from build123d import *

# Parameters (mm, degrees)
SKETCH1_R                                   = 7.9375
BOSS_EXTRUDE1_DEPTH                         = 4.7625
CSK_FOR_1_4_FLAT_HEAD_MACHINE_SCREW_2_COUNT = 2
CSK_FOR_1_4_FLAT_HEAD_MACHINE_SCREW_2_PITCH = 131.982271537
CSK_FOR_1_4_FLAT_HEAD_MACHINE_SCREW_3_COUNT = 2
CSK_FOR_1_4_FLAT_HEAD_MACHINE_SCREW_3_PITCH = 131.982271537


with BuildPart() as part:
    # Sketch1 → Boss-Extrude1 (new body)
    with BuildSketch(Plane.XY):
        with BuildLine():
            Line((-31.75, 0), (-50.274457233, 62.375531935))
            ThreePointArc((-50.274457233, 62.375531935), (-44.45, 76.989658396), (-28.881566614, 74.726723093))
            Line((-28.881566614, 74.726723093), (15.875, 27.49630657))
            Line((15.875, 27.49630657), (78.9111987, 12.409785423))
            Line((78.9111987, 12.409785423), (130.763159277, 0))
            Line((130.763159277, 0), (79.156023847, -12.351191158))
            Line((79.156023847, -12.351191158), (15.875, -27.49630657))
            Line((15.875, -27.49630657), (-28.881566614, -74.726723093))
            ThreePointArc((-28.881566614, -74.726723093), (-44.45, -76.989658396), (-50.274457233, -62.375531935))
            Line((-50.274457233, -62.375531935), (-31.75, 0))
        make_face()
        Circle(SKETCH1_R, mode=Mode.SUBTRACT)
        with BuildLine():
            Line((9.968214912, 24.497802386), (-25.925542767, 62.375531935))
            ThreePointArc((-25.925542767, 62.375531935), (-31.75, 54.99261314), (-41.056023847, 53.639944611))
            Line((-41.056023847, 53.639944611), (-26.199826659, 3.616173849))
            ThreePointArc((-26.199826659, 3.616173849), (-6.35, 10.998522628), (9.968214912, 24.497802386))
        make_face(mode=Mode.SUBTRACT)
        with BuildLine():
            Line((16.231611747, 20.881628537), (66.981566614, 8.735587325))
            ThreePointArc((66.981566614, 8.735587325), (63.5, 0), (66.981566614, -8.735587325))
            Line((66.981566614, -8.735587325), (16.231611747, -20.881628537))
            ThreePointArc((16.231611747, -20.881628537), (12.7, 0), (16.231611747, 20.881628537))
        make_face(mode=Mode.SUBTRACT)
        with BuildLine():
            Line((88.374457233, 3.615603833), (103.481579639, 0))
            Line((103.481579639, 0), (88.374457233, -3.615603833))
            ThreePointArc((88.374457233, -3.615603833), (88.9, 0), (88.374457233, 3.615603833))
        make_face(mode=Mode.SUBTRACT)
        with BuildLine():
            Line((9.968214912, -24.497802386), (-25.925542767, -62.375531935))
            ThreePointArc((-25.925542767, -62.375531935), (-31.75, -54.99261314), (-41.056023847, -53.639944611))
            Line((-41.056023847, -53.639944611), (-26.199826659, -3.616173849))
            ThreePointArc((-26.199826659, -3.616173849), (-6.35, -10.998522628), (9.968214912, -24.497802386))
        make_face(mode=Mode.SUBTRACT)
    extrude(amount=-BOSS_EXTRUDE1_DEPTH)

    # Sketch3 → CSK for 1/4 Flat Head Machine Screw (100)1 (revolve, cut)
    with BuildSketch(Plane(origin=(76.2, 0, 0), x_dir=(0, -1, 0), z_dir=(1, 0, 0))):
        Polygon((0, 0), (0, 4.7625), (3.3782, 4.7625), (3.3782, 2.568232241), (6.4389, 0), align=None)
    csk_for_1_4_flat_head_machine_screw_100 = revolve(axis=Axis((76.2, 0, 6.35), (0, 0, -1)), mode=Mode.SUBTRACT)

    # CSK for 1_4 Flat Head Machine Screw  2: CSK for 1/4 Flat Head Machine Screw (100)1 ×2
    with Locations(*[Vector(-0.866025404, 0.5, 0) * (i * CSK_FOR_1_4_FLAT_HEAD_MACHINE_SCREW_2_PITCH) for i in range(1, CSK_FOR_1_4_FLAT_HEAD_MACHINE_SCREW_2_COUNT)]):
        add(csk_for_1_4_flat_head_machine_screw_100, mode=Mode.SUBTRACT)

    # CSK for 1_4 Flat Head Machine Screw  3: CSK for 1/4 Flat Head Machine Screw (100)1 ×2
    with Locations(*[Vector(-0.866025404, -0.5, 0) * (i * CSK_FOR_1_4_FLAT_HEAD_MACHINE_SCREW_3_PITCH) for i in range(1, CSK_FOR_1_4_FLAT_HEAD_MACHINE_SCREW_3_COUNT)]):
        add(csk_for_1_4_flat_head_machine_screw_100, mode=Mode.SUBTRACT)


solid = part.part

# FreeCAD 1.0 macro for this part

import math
import FreeCAD as App
import Part
import Sketcher
from FreeCAD import Vector
Q = App.Units.Quantity


def add_polygon(sketch, points):
    """Adds a closed chain of lines whose ends are joined by coincident constraints."""
    first, n = sketch.GeometryCount, len(points)
    for a, b in zip(points, points[1:] + points[:1]):
        sketch.addGeometry(Part.LineSegment(App.Vector(*a, 0), App.Vector(*b, 0)), False)
    for i in range(n):
        sketch.addConstraint(Sketcher.Constraint("Coincident", first + i, 2, first + (i + 1) % n, 1))

doc = App.newDocument("Part")
body = doc.addObject("PartDesign::Body", "Body")

sketch1 = body.newObject("Sketcher::SketchObject", "Sketch")
sketch1.AttachmentSupport = (doc.getObject("XY_Plane"), [""])
sketch1.MapMode = "FlatFace"
sketch1.addGeometry([
    Part.LineSegment(Vector(-50.274457, 62.375532, 0), Vector(-31.75, 0, 0)),
    Part.LineSegment(Vector(-31.75, 0, 0), Vector(-50.274457, -62.375532, 0)),
    Part.ArcOfCircle(Part.Circle(Vector(-38.1, -65.991136, 0), Vector(0, 0, 1), 12.7), math.radians(163.459489), math.radians(316.540511)),
    Part.LineSegment(Vector(-28.881567, -74.726723, 0), Vector(15.875, -27.496307, 0)),
    Part.LineSegment(Vector(15.875, -27.496307, 0), Vector(79.156024, -12.351191, 0)),
    Part.LineSegment(Vector(79.156024, -12.351191, 0), Vector(130.763159, 0, 0)),
    Part.LineSegment(Vector(130.763159, 0, 0), Vector(78.911199, 12.409785, 0)),
    Part.LineSegment(Vector(78.911199, 12.409785, 0), Vector(15.875, 27.496307, 0)),
    Part.LineSegment(Vector(15.875, 27.496307, 0), Vector(-28.881567, 74.726723, 0)),
    Part.ArcOfCircle(Part.Circle(Vector(-38.1, 65.991136, 0), Vector(0, 0, 1), 12.7), math.radians(43.459489), math.radians(196.540511)),
    Part.LineSegment(Vector(9.968215, -24.497802, 0), Vector(-25.925543, -62.375532, 0)),
    Part.ArcOfCircle(Part.Circle(Vector(-38.1, -65.991136, 0), Vector(0, 0, 1), 12.7), math.radians(16.540511), math.radians(103.459489)),
    Part.LineSegment(Vector(-41.056024, -53.639945, 0), Vector(-26.199827, -3.616174, 0)),
    Part.ArcOfCircle(Part.Circle(Vector(-38.1, -65.991136, 0), Vector(0, 0, 1), 63.5), math.radians(40.801341), math.radians(79.198659)),
    Part.LineSegment(Vector(88.374457, 3.615604, 0), Vector(103.48158, 0, 0)),
    Part.LineSegment(Vector(103.48158, 0, 0), Vector(88.374457, -3.615604, 0)),
    Part.ArcOfCircle(Part.Circle(Vector(76.2, 0, 0), Vector(0, 0, 1), 12.7), math.radians(-16.540511), math.radians(16.540511)),
    Part.LineSegment(Vector(16.231612, 20.881629, 0), Vector(66.981567, 8.735587, 0)),
    Part.ArcOfCircle(Part.Circle(Vector(76.2, 0, 0), Vector(0, 0, 1), 12.7), math.radians(136.540511), math.radians(223.459489)),
    Part.LineSegment(Vector(66.981567, -8.735587, 0), Vector(16.231612, -20.881629, 0)),
    Part.ArcOfCircle(Part.Circle(Vector(76.2, 0, 0), Vector(0, 0, 1), 63.5), math.radians(160.801341), math.radians(199.198659)),
    Part.Circle(Vector(0, 0, 0), Vector(0, 0, 1), 7.9375),
    Part.ArcOfCircle(Part.Circle(Vector(-38.1, 65.991136, 0), Vector(0, 0, 1), 63.5), math.radians(-79.198659), math.radians(-40.801341)),
    Part.LineSegment(Vector(-26.199827, 3.616174, 0), Vector(-41.056024, 53.639945, 0)),
    Part.ArcOfCircle(Part.Circle(Vector(-38.1, 65.991136, 0), Vector(0, 0, 1), 12.7), math.radians(-103.459489), math.radians(-16.540511)),
    Part.LineSegment(Vector(-25.925543, 62.375532, 0), Vector(9.968215, 24.497802, 0)),
], False)
sketch1.addConstraint([
    Sketcher.Constraint("Coincident", 0, 2, 1, 1),
    Sketcher.Constraint("Tangent", 1, 2, 2, 1),
    Sketcher.Constraint("Tangent", 2, 2, 3, 1),
    Sketcher.Constraint("Coincident", 3, 2, 4, 1),
    Sketcher.Constraint("Coincident", 4, 2, 5, 1),
    Sketcher.Constraint("Coincident", 5, 2, 6, 1),
    Sketcher.Constraint("Coincident", 6, 2, 7, 1),
    Sketcher.Constraint("Coincident", 7, 2, 8, 1),
    Sketcher.Constraint("Tangent", 8, 2, 9, 1),
    Sketcher.Constraint("Tangent", 9, 2, 0, 1),
    Sketcher.Constraint("Coincident", 10, 2, 11, 1),
    Sketcher.Constraint("Coincident", 11, 2, 12, 1),
    Sketcher.Constraint("Coincident", 12, 2, 13, 2),
    Sketcher.Constraint("Coincident", 13, 1, 10, 1),
    Sketcher.Constraint("Coincident", 14, 2, 15, 1),
    Sketcher.Constraint("Coincident", 15, 2, 16, 1),
    Sketcher.Constraint("Coincident", 16, 2, 14, 1),
    Sketcher.Constraint("Coincident", 17, 2, 18, 1),
    Sketcher.Constraint("Coincident", 18, 2, 19, 1),
    Sketcher.Constraint("Coincident", 19, 2, 20, 2),
    Sketcher.Constraint("Coincident", 20, 1, 17, 1),
    Sketcher.Constraint("Coincident", 22, 1, 23, 1),
    Sketcher.Constraint("Coincident", 23, 2, 24, 1),
    Sketcher.Constraint("Coincident", 24, 2, 25, 1),
    Sketcher.Constraint("Coincident", 25, 2, 22, 2),
    Sketcher.Constraint("Coincident", 21, 3, -1, 1),
    Sketcher.Constraint("Coincident", 11, 3, 2, 3),
    Sketcher.Constraint("Coincident", 13, 3, 2, 3),
    Sketcher.Constraint("Coincident", 18, 3, 16, 3),
    Sketcher.Constraint("Coincident", 20, 3, 16, 3),
    Sketcher.Constraint("Coincident", 22, 3, 9, 3),
    Sketcher.Constraint("Coincident", 24, 3, 9, 3),
    Sketcher.Constraint("Equal", 2, 9),
    Sketcher.Constraint("Equal", 9, 11),
    Sketcher.Constraint("Equal", 11, 16),
    Sketcher.Constraint("Equal", 16, 18),
    Sketcher.Constraint("Equal", 13, 20),
    Sketcher.Constraint("Equal", 20, 22),
    Sketcher.Constraint("Equal", 18, 24),
    Sketcher.Constraint("Symmetric", 2, 3, 9, 3, -1),
    Sketcher.Constraint("Symmetric", 3, 2, 7, 2, -1),
    Sketcher.Constraint("Symmetric", 15, 2, 16, 2, -1),
    Sketcher.Constraint("PointOnObject", 0, 2, -1),
    Sketcher.Constraint("PointOnObject", 5, 2, -1),
    Sketcher.Constraint("PointOnObject", 14, 2, -1),
    Sketcher.Constraint("Parallel", 4, 5),
    Sketcher.Constraint("Parallel", 6, 7),
    Sketcher.Constraint("Parallel", 3, 10),
    Sketcher.Constraint("Parallel", 1, 12),
    Sketcher.Constraint("Parallel", 7, 14),
    Sketcher.Constraint("Parallel", 14, 17),
    Sketcher.Constraint("Parallel", 15, 19),
    Sketcher.Constraint("Parallel", 0, 23),
    Sketcher.Constraint("Parallel", 8, 25),
    Sketcher.Constraint("Horizontal", 1, 2, 10, 2),
    Sketcher.Constraint("Horizontal", 9, 2, 24, 2),
    Sketcher.Constraint("Vertical", 17, 2, 18, 2),
    Sketcher.Constraint("Vertical", 12, 2, 22, 1),
    Sketcher.Constraint("Equal", 1, 3),
    Sketcher.Constraint("Equal", 3, 4),
    Sketcher.Constraint("Equal", 10, 12),
    Sketcher.Constraint("Equal", 12, 17),
    Sketcher.Constraint("Radius", 2, Q("0.5 in")),
    Sketcher.Constraint("Radius", 13, Q("2.5 in")),
    Sketcher.Constraint("Diameter", 21, Q("0.625 in")),
    Sketcher.Constraint("DistanceX", -1, 1, 16, 3, Q("3 in")),
    Sketcher.Constraint("DistanceX", 2, 3, -1, 1, Q("1.5 in")),
    Sketcher.Constraint("DistanceX", 0, 2, -1, 1, Q("1.25 in")),
    Sketcher.Constraint("DistanceX", -1, 1, 3, 2, Q("0.625 in")),
    Sketcher.Constraint("Distance", 7, Q("64.816398 mm")),
    Sketcher.Constraint("DistanceX", -1, 1, 6, 2, Q("78.911199 mm")),
    Sketcher.Constraint("DistanceY", 17, 2, 6, 2, Q("3.674198 mm")),
    Sketcher.Constraint("Distance", 14, Q("15.533761 mm")),
])
pad1 = body.newObject("PartDesign::Pad", "Pad")
pad1.Profile = sketch1
pad1.Length = Q("0.1875 in")
pad1.Reversed = True

sketch2 = body.newObject("Sketcher::SketchObject", "Sketch001")
sketch2.AttachmentSupport = (doc.getObject("YZ_Plane"), [""])
sketch2.MapMode = "FlatFace"
sketch2.AttachmentOffset = App.Placement(Vector(0, 0, 3 * 25.4), App.Rotation())
add_polygon(sketch2, [(0, -4.7625), (0, 0), (-6.4389, 0), (-3.3782, -2.568232), (-3.3782, -4.7625)])
sketch2.addConstraint([
    Sketcher.Constraint("Vertical", 0),
    Sketcher.Constraint("Horizontal", 1),
    Sketcher.Constraint("Vertical", 3),
    Sketcher.Constraint("Horizontal", 4),
    Sketcher.Constraint("Coincident", 0, 2, -1, 1),
    Sketcher.Constraint("Angle", 2, Q("-40 deg")),
    Sketcher.Constraint("DistanceX", 4, 1, 4, 2, Q("0.133 in")),
    Sketcher.Constraint("DistanceY", 0, 1, 0, 2, Q("0.1875 in")),
    Sketcher.Constraint("DistanceX", 1, 2, 1, 1, Q("0.2535 in")),
])
groove = body.newObject("PartDesign::Groove", "Groove")
groove.Profile = sketch2
groove.ReferenceAxis = (sketch2, ["V_Axis"])
groove.Angle = 360
doc.recompute()

datumline = body.newObject("PartDesign::Line", "DatumLine")
datumline.Placement = App.Placement(Vector(0, 0, 0), App.Rotation(Vector(0, 0, 1), Vector(-0.866025404, 0.5, 0)))
linearpattern = body.newObject("PartDesign::LinearPattern", "LinearPattern")
linearpattern.Originals = [groove]
linearpattern.Direction = (datumline, [""])
linearpattern.Mode = "offset"
linearpattern.Offset = 131.982272
linearpattern.Occurrences = 2
body.Tip = linearpattern
doc.recompute()

datumline2 = body.newObject("PartDesign::Line", "DatumLine001")
datumline2.Placement = App.Placement(Vector(0, 0, 0), App.Rotation(Vector(0, 0, 1), Vector(-0.866025404, -0.5, 0)))
linearpattern2 = body.newObject("PartDesign::LinearPattern", "LinearPattern001")
linearpattern2.Originals = [groove]
linearpattern2.Direction = (datumline2, [""])
linearpattern2.Mode = "offset"
linearpattern2.Offset = 131.982272
linearpattern2.Occurrences = 2
body.Tip = linearpattern2

doc.recompute()
